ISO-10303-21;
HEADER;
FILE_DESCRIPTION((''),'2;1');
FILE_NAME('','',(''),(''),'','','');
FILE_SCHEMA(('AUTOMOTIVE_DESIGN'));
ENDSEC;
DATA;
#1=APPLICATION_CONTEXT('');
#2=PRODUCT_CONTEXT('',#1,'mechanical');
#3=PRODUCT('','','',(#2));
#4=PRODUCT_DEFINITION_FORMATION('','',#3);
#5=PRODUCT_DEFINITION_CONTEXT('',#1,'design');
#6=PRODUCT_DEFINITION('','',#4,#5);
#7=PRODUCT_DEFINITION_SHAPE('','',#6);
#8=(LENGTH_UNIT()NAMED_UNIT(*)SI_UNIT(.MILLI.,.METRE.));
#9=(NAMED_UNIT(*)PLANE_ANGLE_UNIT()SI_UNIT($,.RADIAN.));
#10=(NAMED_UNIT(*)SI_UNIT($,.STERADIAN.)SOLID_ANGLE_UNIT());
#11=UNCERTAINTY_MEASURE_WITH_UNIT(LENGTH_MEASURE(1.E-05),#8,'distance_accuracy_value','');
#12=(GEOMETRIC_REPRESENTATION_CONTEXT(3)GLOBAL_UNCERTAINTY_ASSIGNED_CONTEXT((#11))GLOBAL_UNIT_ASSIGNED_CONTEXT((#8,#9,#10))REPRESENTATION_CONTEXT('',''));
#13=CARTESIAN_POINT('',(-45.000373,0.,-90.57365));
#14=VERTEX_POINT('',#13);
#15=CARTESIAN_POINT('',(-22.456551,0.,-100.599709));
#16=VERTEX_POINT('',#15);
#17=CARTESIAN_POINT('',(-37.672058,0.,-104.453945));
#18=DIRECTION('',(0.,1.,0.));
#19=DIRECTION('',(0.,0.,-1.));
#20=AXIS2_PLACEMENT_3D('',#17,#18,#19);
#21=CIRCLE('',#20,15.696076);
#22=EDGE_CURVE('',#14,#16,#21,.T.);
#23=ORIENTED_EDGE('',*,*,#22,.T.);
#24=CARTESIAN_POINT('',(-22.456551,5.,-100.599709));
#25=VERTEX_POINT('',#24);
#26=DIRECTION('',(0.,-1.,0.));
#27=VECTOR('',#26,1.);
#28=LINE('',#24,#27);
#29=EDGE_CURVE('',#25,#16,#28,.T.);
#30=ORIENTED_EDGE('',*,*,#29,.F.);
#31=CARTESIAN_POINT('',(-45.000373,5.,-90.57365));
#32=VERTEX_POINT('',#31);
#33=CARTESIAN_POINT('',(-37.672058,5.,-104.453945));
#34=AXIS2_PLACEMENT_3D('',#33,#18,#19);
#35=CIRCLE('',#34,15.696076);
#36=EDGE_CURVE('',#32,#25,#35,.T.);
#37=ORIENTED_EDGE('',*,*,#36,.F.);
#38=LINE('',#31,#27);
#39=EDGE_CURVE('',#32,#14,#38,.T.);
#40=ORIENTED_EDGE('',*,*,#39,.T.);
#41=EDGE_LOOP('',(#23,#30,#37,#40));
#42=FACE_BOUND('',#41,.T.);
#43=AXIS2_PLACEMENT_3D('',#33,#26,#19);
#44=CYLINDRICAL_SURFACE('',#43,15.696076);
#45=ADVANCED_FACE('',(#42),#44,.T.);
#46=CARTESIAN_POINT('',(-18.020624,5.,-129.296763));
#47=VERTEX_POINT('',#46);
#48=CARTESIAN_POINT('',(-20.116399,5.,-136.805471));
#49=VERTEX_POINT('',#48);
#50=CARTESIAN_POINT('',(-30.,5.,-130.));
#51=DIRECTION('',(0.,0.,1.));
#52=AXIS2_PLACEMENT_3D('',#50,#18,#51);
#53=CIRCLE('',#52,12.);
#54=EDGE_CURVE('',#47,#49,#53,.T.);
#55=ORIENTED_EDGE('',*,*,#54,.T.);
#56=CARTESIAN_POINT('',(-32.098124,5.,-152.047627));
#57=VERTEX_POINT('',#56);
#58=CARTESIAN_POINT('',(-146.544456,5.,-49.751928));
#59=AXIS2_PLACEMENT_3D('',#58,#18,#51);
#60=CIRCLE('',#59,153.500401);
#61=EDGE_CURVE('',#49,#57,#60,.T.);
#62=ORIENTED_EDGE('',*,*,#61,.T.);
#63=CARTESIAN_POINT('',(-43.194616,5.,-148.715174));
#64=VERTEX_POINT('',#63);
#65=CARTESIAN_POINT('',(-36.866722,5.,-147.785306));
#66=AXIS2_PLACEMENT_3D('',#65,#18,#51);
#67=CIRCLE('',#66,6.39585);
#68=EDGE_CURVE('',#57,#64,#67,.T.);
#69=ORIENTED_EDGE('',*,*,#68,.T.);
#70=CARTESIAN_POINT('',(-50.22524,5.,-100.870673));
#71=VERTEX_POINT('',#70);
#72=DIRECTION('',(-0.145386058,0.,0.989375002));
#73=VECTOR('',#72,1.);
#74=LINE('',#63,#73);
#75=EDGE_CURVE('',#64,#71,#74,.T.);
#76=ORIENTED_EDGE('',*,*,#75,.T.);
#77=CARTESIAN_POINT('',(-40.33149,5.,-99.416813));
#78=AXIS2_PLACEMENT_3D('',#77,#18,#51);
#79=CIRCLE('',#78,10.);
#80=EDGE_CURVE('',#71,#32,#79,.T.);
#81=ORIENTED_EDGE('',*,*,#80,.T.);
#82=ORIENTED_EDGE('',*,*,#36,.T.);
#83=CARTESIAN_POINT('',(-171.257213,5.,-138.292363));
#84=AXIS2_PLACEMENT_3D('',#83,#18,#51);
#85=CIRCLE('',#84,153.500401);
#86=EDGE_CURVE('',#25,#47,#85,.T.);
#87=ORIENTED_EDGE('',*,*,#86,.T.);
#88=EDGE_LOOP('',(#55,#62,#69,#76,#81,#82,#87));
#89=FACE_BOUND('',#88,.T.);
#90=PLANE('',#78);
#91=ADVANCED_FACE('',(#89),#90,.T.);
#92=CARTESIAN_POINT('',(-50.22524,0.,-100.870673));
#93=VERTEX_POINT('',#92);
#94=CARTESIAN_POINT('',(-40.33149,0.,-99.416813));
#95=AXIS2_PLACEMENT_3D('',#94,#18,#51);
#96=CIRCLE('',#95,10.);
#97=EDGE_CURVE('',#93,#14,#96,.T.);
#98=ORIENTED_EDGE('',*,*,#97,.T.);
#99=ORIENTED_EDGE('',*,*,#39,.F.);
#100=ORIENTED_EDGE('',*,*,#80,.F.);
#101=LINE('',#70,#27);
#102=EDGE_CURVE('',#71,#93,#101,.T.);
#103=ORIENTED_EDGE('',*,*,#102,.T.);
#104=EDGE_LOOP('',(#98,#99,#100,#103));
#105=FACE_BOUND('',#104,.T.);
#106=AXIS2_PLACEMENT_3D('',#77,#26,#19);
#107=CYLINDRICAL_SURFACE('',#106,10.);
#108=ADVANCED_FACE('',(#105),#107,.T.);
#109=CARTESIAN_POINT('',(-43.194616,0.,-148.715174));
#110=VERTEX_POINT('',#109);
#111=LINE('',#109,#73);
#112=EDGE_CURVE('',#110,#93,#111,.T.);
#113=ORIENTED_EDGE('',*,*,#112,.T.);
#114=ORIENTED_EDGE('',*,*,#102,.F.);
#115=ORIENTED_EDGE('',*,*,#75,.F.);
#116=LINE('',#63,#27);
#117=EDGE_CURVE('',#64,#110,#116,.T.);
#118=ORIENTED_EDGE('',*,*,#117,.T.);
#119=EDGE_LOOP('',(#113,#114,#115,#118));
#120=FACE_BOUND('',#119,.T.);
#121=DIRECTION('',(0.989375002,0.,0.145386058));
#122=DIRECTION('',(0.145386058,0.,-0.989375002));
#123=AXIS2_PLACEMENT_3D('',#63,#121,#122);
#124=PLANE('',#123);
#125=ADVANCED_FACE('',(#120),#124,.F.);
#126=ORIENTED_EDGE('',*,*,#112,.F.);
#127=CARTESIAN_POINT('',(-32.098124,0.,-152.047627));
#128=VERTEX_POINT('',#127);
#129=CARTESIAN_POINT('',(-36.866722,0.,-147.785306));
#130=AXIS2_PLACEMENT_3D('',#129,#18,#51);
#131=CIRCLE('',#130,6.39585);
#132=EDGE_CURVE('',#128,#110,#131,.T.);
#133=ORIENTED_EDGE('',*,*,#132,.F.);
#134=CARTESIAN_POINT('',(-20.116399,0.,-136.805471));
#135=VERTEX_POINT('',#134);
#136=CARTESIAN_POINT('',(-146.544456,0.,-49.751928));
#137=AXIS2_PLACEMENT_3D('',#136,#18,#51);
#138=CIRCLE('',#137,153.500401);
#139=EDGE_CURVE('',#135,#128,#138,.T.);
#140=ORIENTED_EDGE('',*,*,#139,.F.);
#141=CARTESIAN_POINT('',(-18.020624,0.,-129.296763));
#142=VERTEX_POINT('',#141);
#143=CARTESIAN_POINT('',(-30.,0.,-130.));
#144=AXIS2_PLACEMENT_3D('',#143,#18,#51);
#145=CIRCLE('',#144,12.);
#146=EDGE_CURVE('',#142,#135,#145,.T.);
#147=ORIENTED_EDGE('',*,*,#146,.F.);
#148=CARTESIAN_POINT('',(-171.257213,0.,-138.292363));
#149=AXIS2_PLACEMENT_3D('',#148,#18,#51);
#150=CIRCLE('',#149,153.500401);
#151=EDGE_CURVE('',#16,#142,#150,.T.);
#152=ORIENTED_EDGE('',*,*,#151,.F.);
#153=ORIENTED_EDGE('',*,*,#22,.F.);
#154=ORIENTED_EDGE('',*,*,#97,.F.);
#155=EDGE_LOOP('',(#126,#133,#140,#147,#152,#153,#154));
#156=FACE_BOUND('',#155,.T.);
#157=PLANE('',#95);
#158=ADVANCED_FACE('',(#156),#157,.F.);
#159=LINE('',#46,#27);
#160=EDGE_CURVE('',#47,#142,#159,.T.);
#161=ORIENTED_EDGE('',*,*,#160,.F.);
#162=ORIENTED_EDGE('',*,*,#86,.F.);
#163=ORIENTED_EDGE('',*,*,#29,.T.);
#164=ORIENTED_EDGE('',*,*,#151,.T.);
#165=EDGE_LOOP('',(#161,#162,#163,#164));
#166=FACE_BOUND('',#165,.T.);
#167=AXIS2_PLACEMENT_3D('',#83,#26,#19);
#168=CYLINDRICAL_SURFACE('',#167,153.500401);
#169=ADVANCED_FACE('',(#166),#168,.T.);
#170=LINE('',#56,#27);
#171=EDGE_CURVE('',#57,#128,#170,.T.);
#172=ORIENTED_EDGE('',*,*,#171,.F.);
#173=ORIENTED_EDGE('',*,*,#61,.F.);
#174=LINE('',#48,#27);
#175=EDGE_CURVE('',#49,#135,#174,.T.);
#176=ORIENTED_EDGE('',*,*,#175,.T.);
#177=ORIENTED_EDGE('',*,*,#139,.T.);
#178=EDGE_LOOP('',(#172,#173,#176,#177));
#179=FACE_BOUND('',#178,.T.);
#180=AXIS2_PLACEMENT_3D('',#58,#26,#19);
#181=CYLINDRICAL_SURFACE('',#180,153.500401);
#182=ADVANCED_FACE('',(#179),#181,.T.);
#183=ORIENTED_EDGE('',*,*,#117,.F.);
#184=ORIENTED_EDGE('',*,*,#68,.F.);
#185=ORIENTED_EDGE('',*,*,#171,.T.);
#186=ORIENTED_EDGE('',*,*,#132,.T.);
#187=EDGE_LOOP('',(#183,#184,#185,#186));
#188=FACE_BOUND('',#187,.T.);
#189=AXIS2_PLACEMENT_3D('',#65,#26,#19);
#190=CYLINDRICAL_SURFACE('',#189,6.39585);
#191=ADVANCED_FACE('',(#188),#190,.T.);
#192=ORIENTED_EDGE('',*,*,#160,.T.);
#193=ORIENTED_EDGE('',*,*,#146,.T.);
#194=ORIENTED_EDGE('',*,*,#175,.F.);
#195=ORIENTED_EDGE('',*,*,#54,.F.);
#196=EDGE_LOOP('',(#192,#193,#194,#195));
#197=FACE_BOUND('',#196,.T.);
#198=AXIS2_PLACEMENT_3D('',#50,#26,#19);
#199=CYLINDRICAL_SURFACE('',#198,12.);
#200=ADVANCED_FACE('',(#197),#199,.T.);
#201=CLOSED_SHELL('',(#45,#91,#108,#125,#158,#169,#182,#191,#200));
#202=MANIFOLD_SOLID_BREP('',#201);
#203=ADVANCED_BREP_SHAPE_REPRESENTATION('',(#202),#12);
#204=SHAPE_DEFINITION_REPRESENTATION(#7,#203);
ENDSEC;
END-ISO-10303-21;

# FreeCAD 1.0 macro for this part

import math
import FreeCAD as App
import Part
import Sketcher
from FreeCAD import Vector
Q = App.Units.Quantity

doc = App.newDocument("Part")
body = doc.addObject("PartDesign::Body", "Body")

# Sketch on XZ plane
sketch1 = body.newObject("Sketcher::SketchObject", "Sketch")
sketch1.AttachmentSupport = (doc.getObject("XZ_Plane"), [""])
sketch1.MapMode = "FlatFace"
sketch1.addGeometry([
    Part.LineSegment(Vector(-43.194616, -148.715174, 0), Vector(-50.22524, -100.870673, 0)),  # 0
    Part.ArcOfCircle(Part.Circle(Vector(-40.33149, -99.416813, 0), Vector(0, 0, 1), 10), math.radians(117.8325), math.radians(188.359636)),  # 1
    Part.ArcOfCircle(Part.Circle(Vector(-37.672058, -104.453945, 0), Vector(0, 0, 1), 15.696076), math.radians(14.214582), math.radians(117.8325)),  # 2
    Part.ArcOfCircle(Part.Circle(Vector(-171.257212, -138.292363, 0), Vector(0, 0, 1), 153.500401), math.radians(3.359636), math.radians(14.214582)),  # 3
    Part.ArcOfCircle(Part.Circle(Vector(-30, -130, 0), Vector(0, 0, 1), 12), math.radians(-34.549817), math.radians(3.359636)),  # 4
    Part.ArcOfCircle(Part.Circle(Vector(-146.544456, -49.751928, 0), Vector(0, 0, 1), 153.500401), math.radians(-41.791338), math.radians(-34.549817)),  # 5
    Part.ArcOfCircle(Part.Circle(Vector(-36.866722, -147.785306, 0), Vector(0, 0, 1), 6.39585), math.radians(-171.640364), math.radians(-41.791338)),  # 6
], False)
sketch1.addConstraint([
    Sketcher.Constraint("Coincident", 0, 2, 1, 2),
    Sketcher.Constraint("Coincident", 1, 1, 2, 2),
    Sketcher.Constraint("Coincident", 2, 1, 3, 2),
    Sketcher.Constraint("Coincident", 3, 1, 4, 2),
    Sketcher.Constraint("Coincident", 4, 1, 5, 2),
    Sketcher.Constraint("Coincident", 5, 1, 6, 2),
    Sketcher.Constraint("Coincident", 6, 1, 0, 1),
    Sketcher.Constraint("Radius", 1, Q("10 mm")),
    Sketcher.Constraint("Radius", 4, Q("12 mm")),
    Sketcher.Constraint("DistanceX", 4, 3, -1, 1, Q("30 mm")),
    Sketcher.Constraint("DistanceY", 4, 3, -1, 1, Q("130 mm")),
    Sketcher.Constraint("Radius", 3, Q("153.500401 mm")),
    Sketcher.Constraint("Radius", 5, Q("153.500401 mm")),
    Sketcher.Constraint("Radius", 6, Q("6.39585 mm")),
    Sketcher.Constraint("Radius", 2, Q("15.696076 mm")),
    Sketcher.Constraint("DistanceX", 4, 1, -1, 1, Q("20.116399 mm")),
    Sketcher.Constraint("DistanceX", 5, 1, 3, 1, Q("14.077501 mm")),
    Sketcher.Constraint("DistanceX", 1, 3, -1, 1, Q("40.33149 mm")),
    Sketcher.Constraint("DistanceX", 2, 3, -1, 1, Q("37.672058 mm")),
    Sketcher.Constraint("DistanceX", 6, 3, -1, 1, Q("36.866722 mm")),
    Sketcher.Constraint("DistanceX", 0, 2, -1, 1, Q("50.22524 mm")),
    Sketcher.Constraint("DistanceY", 1, 1, -1, 1, Q("90.57365 mm")),
    Sketcher.Constraint("DistanceX", 2, 1, -1, 1, Q("22.456551 mm")),
    Sketcher.Constraint("DistanceY", 2, 1, -1, 1, Q("100.599709 mm")),
    Sketcher.Constraint("DistanceY", 6, 3, 2, 3, Q("43.331361 mm")),
    Sketcher.Constraint("DistanceY", 3, 1, 1, 3, Q("29.87995 mm")),
    Sketcher.Constraint("DistanceY", 6, 1, 3, 1, Q("19.418411 mm")),
])
pad1 = body.newObject("PartDesign::Pad", "Pad")
pad1.Profile = sketch1
pad1.Length = 5
pad1.Reversed = True

doc.recompute()
